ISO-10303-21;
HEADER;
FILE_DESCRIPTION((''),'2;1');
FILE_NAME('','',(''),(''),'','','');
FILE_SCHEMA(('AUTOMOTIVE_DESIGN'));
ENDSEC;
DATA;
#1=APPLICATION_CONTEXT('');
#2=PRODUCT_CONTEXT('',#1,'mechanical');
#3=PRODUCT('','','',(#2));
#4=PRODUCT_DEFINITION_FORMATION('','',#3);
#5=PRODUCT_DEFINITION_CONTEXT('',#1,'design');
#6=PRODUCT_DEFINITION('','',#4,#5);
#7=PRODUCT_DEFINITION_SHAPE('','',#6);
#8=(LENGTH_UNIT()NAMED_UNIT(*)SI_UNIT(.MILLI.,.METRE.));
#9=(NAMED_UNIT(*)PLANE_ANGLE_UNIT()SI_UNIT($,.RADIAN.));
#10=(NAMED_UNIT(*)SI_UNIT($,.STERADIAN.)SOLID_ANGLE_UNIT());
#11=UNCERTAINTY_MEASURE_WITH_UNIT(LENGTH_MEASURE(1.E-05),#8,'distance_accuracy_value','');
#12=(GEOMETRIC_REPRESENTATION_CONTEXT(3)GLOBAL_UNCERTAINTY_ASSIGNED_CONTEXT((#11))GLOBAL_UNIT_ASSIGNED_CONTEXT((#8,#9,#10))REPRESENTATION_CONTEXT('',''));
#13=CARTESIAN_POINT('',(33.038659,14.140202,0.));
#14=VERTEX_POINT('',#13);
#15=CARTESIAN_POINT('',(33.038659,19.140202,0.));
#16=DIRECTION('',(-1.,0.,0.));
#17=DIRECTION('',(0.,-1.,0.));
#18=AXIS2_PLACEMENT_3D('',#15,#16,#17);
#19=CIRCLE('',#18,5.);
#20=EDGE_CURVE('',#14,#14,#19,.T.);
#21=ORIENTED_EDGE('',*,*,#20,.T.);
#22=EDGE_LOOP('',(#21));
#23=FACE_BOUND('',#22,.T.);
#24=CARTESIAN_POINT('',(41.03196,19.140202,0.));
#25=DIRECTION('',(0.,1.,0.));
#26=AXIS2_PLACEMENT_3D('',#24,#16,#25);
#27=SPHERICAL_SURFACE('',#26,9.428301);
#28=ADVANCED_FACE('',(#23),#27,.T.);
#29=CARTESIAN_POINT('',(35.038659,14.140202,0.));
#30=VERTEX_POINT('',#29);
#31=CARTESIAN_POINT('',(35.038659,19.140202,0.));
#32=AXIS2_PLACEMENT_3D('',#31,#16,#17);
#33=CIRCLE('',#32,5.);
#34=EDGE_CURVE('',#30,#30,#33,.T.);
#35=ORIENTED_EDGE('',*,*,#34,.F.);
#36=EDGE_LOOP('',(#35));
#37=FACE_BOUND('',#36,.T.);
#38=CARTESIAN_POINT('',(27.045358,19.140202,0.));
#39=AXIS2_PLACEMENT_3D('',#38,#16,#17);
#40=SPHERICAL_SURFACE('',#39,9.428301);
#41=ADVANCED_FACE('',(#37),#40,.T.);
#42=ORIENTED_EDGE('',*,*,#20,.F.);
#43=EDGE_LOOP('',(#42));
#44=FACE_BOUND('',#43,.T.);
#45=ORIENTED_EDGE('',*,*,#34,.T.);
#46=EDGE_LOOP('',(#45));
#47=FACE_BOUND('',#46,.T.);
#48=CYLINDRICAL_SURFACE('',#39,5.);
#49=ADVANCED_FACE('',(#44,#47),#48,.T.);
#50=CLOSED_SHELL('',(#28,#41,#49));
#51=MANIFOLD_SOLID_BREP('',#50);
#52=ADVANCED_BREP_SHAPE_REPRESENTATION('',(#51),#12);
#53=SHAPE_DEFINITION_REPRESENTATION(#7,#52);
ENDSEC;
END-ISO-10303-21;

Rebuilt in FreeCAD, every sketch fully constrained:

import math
import FreeCAD as App
import Part
import Sketcher

V = App.Vector
Q = App.Units.Quantity

doc = App.newDocument("Part")
params = doc.addObject("Spreadsheet::Sheet", "Params")
for row, (alias, value) in enumerate([
    ("sketch1_width", "2 mm"),
    ("sketch1_width2", "4.87 mm"),
    ("revolution_angle", "360 deg"),
], start=1):
    params.set(f"A{row}", alias)
    params.set(f"B{row}", "=" + value)
    params.setAlias(f"B{row}", alias)

body = doc.addObject("PartDesign::Body", "Body")

sketch1 = body.newObject("Sketcher::SketchObject", "Sketch")
sketch1.AttachmentSupport = (doc.getObject("XY_Plane"), [""])
sketch1.MapMode = "FlatFace"
sketch1.addGeometry([
    Part.LineSegment(V(35, 24.1, 0), V(33, 24.1, 0)),
    Part.ArcOfCircle(Part.Circle(V(41, 19.1, 0), V(0, 0, 1), 9.4), math.radians(148), math.radians(180)),
    Part.LineSegment(V(31.6, 19.1, 0), V(36.5, 19.1, 0)),
    Part.ArcOfCircle(Part.Circle(V(27, 19.1, 0), V(0, 0, 1), 9.4), math.radians(0), math.radians(32)),
], False)
sketch1.addGeometry(Part.LineSegment(V(27, 19.1, 0), V(41, 19.1, 0)), True)
sketch1.addConstraint([
    Sketcher.Constraint("Coincident", 0, 2, 1, 1),
    Sketcher.Constraint("Coincident", 1, 2, 2, 1),
    Sketcher.Constraint("Coincident", 2, 2, 3, 1),
    Sketcher.Constraint("Coincident", 3, 2, 0, 1),
    Sketcher.Constraint("Horizontal", 0),
    Sketcher.Constraint("Horizontal", 2),
    Sketcher.Constraint("Horizontal", 4),
    Sketcher.Constraint("Coincident", 4, 1, 3, 3),
    Sketcher.Constraint("Coincident", 4, 2, 1, 3),
    Sketcher.Constraint("Equal", 1, 3),
    Sketcher.Constraint("Horizontal", 3, 3, 1, 2),
    Sketcher.Constraint("DistanceX", 0, 2, 0, 1, Q("2 mm")),
    Sketcher.Constraint("DistanceY", 3, 3, 0, 2, Q("5 mm")),
    Sketcher.Constraint("DistanceX", 2, 1, 2, 2, Q("4.87 mm")),
    Sketcher.Constraint("DistanceY", -1, 1, 1, 3, Q("19.140202 mm")),
    Sketcher.Constraint("DistanceX", -1, 1, 1, 3, Q("41.03196 mm")),
])
sketch1.setExpression("Constraints[11]", "Params.sketch1_width")
sketch1.setExpression("Constraints[13]", "Params.sketch1_width2")
revolution = body.newObject("PartDesign::Revolution", "Revolution")
revolution.Profile = sketch1
revolution.ReferenceAxis = (sketch1, ["Axis0"])
revolution.setExpression("Angle", "Params.revolution_angle")

doc.recompute()
